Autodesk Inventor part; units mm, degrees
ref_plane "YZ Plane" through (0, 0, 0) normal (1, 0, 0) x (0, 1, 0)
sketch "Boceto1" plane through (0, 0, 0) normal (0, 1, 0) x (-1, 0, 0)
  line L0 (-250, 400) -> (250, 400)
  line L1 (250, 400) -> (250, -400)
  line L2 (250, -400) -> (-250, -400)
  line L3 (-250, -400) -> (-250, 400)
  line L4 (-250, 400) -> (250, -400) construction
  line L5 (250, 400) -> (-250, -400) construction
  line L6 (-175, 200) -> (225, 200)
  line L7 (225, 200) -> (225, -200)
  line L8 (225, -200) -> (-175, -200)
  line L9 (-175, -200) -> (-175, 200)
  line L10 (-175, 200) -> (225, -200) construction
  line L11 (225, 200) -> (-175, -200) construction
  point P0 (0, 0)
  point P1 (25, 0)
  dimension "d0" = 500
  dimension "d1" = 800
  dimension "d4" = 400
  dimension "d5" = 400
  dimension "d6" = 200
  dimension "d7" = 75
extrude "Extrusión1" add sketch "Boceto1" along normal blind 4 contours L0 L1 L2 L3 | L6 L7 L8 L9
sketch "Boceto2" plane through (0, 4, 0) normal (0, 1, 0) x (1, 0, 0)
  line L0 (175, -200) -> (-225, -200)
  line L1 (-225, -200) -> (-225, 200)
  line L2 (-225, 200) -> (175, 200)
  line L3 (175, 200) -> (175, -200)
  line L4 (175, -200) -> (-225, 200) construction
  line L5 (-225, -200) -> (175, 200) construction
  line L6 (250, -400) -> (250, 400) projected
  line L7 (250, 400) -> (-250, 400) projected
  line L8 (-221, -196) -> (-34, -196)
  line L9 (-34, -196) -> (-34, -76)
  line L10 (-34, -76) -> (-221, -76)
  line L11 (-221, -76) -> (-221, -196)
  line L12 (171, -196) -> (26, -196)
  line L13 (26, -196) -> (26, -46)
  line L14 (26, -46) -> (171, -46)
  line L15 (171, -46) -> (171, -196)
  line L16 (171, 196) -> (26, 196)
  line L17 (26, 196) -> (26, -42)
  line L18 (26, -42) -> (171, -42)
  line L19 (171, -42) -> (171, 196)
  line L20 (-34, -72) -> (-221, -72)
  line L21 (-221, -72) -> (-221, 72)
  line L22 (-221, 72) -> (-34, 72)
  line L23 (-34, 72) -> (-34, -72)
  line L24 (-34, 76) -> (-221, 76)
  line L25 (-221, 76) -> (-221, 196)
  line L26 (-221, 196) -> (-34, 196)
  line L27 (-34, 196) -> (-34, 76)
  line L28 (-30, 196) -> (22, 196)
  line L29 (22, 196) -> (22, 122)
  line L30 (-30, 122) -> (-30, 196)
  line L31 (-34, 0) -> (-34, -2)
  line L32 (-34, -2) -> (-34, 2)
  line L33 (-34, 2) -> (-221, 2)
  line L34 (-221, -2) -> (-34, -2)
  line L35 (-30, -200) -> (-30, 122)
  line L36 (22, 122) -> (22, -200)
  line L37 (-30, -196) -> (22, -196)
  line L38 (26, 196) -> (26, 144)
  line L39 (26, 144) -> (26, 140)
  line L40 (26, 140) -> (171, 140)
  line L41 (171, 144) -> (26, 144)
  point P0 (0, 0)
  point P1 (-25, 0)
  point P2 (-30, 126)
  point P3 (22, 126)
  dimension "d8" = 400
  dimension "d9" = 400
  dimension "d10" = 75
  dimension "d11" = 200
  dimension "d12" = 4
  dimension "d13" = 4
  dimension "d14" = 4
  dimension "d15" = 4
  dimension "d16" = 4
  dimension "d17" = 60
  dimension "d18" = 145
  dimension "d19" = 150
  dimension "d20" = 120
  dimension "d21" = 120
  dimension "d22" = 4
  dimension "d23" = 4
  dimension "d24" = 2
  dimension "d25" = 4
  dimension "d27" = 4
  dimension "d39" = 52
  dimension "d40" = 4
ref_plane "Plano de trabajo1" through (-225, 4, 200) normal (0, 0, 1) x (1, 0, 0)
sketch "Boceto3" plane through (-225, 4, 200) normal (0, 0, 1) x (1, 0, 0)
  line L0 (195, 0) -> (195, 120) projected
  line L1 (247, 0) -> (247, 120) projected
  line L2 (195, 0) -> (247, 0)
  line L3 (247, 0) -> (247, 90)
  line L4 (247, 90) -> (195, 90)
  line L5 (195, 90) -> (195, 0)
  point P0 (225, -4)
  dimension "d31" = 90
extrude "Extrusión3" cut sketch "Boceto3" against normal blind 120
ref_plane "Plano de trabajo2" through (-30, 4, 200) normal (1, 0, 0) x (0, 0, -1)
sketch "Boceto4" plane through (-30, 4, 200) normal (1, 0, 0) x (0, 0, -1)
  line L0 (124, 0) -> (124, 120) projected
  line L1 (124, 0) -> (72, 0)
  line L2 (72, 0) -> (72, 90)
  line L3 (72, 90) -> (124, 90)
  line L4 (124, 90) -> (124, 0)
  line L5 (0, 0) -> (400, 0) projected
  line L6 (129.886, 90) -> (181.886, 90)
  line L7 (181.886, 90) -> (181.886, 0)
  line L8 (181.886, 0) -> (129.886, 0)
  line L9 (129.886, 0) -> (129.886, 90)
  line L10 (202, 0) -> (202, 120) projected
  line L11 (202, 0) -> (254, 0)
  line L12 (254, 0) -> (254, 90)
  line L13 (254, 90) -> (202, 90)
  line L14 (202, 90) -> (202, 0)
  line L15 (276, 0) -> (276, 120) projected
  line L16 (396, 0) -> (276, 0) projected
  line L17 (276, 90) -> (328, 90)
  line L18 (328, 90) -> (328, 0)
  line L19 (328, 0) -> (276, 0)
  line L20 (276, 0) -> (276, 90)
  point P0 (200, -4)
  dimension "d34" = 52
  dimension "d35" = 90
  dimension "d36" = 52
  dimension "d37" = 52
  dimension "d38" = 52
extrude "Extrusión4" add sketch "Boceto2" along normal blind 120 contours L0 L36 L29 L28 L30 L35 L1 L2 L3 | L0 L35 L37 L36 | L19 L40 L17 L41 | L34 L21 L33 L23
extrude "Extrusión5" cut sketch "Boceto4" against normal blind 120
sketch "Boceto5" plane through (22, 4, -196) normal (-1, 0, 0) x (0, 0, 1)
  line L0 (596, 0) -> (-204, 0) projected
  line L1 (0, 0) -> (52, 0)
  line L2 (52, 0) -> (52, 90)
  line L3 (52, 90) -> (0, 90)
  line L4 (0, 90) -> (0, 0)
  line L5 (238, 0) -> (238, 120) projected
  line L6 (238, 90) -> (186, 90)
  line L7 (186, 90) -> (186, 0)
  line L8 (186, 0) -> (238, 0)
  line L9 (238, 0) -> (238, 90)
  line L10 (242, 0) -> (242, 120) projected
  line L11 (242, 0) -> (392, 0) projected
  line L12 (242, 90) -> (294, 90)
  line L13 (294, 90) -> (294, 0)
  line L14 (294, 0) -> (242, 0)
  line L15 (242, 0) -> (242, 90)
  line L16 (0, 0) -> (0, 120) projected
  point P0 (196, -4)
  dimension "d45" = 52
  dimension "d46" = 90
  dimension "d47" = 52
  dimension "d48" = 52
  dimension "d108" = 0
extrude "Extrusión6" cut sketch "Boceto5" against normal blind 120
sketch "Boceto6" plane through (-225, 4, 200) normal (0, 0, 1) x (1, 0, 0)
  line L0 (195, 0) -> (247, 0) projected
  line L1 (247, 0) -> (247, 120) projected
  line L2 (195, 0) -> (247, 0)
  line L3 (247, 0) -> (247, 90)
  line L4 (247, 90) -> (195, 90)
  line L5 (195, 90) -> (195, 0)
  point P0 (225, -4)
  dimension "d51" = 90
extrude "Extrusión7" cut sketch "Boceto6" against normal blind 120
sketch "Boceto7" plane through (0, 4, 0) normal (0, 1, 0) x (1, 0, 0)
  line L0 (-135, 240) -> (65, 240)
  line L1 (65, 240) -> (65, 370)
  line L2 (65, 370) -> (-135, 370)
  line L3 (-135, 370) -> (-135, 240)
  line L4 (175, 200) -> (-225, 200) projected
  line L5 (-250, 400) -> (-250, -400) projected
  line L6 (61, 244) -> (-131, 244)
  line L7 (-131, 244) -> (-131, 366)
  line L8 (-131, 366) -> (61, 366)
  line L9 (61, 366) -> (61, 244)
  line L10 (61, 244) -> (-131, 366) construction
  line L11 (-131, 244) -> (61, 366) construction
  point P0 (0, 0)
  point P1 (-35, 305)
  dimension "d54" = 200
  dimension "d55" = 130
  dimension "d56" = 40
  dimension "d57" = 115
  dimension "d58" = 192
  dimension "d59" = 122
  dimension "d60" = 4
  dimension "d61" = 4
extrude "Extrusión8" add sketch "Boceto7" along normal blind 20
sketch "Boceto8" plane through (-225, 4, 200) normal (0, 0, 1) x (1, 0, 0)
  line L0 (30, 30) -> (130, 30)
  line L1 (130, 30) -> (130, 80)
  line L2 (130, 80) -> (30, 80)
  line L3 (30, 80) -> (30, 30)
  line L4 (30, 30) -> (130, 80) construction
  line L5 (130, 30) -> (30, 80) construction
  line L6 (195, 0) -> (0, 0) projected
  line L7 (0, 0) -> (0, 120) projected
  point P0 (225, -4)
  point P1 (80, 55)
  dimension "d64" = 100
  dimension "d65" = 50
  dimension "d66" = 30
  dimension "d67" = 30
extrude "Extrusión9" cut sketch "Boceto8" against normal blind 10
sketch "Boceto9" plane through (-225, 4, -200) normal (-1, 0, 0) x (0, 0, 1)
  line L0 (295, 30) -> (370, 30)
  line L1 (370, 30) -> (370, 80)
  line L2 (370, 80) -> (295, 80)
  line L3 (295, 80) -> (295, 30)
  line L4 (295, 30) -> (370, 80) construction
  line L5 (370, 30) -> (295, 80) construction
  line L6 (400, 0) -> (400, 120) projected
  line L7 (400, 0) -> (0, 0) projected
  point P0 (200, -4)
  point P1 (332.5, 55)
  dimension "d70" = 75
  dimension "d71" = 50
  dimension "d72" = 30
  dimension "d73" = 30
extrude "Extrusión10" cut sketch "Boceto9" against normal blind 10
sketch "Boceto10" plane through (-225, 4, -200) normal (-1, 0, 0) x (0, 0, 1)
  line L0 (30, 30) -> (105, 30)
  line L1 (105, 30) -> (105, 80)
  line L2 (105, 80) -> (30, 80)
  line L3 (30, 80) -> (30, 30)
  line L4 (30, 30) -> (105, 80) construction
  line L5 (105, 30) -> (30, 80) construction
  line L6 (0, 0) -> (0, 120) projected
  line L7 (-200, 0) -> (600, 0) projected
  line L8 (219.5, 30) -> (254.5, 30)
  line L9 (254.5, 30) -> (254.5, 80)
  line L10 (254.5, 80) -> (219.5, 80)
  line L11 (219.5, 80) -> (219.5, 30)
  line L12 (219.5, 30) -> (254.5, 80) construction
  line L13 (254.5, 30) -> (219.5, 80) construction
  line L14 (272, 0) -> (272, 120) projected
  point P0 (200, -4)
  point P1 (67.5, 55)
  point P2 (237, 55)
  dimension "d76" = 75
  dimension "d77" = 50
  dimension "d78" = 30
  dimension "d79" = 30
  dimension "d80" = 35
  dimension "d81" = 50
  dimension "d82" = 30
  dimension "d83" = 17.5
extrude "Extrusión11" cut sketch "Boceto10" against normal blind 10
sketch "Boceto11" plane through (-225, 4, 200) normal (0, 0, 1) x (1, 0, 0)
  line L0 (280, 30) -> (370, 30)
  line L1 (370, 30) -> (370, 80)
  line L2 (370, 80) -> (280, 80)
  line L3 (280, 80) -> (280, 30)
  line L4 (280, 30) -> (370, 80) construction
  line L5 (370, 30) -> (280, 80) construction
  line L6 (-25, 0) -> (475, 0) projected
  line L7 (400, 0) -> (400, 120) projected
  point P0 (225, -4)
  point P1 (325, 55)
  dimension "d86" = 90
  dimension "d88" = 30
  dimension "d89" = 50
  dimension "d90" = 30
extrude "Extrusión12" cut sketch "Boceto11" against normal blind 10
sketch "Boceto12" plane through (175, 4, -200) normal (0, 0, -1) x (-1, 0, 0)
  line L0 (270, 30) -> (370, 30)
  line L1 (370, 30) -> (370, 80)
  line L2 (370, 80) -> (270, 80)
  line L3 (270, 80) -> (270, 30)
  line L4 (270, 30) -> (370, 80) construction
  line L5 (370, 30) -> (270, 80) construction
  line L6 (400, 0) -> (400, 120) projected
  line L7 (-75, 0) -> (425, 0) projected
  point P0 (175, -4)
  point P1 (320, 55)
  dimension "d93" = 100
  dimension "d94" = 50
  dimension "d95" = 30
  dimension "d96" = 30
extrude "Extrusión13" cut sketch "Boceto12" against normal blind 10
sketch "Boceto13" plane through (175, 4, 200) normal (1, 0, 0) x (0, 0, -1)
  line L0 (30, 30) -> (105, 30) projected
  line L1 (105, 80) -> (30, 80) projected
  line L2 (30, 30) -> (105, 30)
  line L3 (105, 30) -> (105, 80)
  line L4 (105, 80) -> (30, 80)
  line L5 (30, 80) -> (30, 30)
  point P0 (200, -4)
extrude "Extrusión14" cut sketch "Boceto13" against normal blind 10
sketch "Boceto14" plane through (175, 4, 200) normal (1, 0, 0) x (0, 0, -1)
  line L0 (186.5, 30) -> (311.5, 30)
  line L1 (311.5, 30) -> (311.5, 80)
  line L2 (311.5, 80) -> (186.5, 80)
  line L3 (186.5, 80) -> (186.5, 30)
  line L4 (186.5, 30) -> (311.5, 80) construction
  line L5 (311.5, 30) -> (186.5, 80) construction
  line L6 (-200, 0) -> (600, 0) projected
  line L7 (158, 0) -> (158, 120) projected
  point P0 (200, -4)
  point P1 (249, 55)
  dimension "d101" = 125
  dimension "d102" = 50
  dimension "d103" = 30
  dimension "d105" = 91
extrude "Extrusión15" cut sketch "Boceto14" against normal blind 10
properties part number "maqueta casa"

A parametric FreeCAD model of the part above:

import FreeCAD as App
import Part
import Sketcher
Q = App.Units.Quantity


def add_polygon(sketch, points):
    """Adds a closed chain of lines whose ends are joined by coincident constraints."""
    first, n = sketch.GeometryCount, len(points)
    for a, b in zip(points, points[1:] + points[:1]):
        sketch.addGeometry(Part.LineSegment(App.Vector(*a, 0), App.Vector(*b, 0)), False)
    for i in range(n):
        sketch.addConstraint(Sketcher.Constraint("Coincident", first + i, 2, first + (i + 1) % n, 1))

doc = App.newDocument("Part")
body = doc.addObject("PartDesign::Body", "Body")

# Sketch on XZ plane
sketch1 = body.newObject("Sketcher::SketchObject", "Sketch")
sketch1.AttachmentSupport = (doc.getObject("XZ_Plane"), [""])
sketch1.MapMode = "FlatFace"
add_polygon(sketch1, [(-250, 400), (250, 400), (250, -400), (-250, -400)])  # lines 0-3
sketch1.addConstraint([
    Sketcher.Constraint("Horizontal", 0),
    Sketcher.Constraint("Vertical", 1),
    Sketcher.Constraint("Horizontal", 2),
    Sketcher.Constraint("Vertical", 3),
    Sketcher.Constraint("Symmetric", 0, 2, 2, 2, -1, 1),
    Sketcher.Constraint("DistanceX", 0, 1, 0, 2, Q("500 mm")),
    Sketcher.Constraint("DistanceY", 1, 2, 1, 1, Q("800 mm")),
])
pad1 = body.newObject("PartDesign::Pad", "Pad")
pad1.Profile = sketch1
pad1.Length = 4
pad1.Reversed = True

# Sketch on XY plane
sketch2 = body.newObject("Sketcher::SketchObject", "Sketch001")
sketch2.AttachmentSupport = (doc.getObject("XY_Plane"), [""])
sketch2.MapMode = "FlatFace"
sketch2.AttachmentOffset = App.Placement(App.Vector(0, 0, 200), App.Rotation())
add_polygon(sketch2, [(-30, 94), (-30, 4), (22, 4), (22, 94)])  # lines 0-3
sketch2.addConstraint([
    Sketcher.Constraint("Vertical", 0),
    Sketcher.Constraint("Horizontal", 1),
    Sketcher.Constraint("Vertical", 2),
    Sketcher.Constraint("Horizontal", 3),
    Sketcher.Constraint("DistanceY", 0, 2, 0, 1, Q("90 mm")),
    Sketcher.Constraint("DistanceX", 1, 1, 1, 2, Q("52 mm")),
    Sketcher.Constraint("DistanceX", 0, 2, -1, 1, Q("30 mm")),
    Sketcher.Constraint("DistanceY", -1, 1, 0, 2, Q("4 mm")),
])
pocket1 = body.newObject("PartDesign::Pocket", "Pocket")
pocket1.Profile = sketch2
pocket1.Length = 120

# Sketch on XZ plane
sketch3 = body.newObject("Sketcher::SketchObject", "Sketch002")
sketch3.AttachmentSupport = (doc.getObject("XZ_Plane"), [""])
sketch3.MapMode = "FlatFace"
sketch3.AttachmentOffset = App.Placement(App.Vector(0, 0, -4), App.Rotation())
add_polygon(sketch3, [(175, 200), (175, -200), (-225, -200), (-225, 200)])  # lines 0-3
add_polygon(sketch3, [(22, 196), (-30, 196), (-30, -196), (22, -196)])  # lines 4-7
add_polygon(sketch3, [(-34, 196), (-221, 196), (-221, 76), (-34, 76)])  # lines 8-11
add_polygon(sketch3, [(171, 46), (171, 196), (26, 196), (26, 46)])  # lines 12-15
add_polygon(sketch3, [(-34, 2), (-34, 72), (-221, 72), (-221, 2)])  # lines 16-19
add_polygon(sketch3, [(-34, -72), (-34, -2), (-221, -2), (-221, -72)])  # lines 20-23
add_polygon(sketch3, [(-34, -196), (-34, -76), (-221, -76), (-221, -196)])  # lines 24-27
add_polygon(sketch3, [(26, -196), (171, -196), (171, -144), (26, -144)])  # lines 28-31
add_polygon(sketch3, [(26, 42), (26, -140), (171, -140), (171, 42)])  # lines 32-35
sketch3.addConstraint([
    Sketcher.Constraint("Vertical", 0),
    Sketcher.Constraint("Horizontal", 1),
    Sketcher.Constraint("Vertical", 2),
    Sketcher.Constraint("Horizontal", 3),
    Sketcher.Constraint("Horizontal", 4),
    Sketcher.Constraint("Vertical", 5),
    Sketcher.Constraint("Horizontal", 6),
    Sketcher.Constraint("Vertical", 7),
    Sketcher.Constraint("Horizontal", 8),
    Sketcher.Constraint("Vertical", 9),
    Sketcher.Constraint("Horizontal", 10),
    Sketcher.Constraint("Vertical", 11),
    Sketcher.Constraint("Vertical", 12),
    Sketcher.Constraint("Horizontal", 13),
    Sketcher.Constraint("Vertical", 14),
    Sketcher.Constraint("Horizontal", 15),
    Sketcher.Constraint("Vertical", 16),
    Sketcher.Constraint("Horizontal", 17),
    Sketcher.Constraint("Vertical", 18),
    Sketcher.Constraint("Horizontal", 19),
    Sketcher.Constraint("Vertical", 20),
    Sketcher.Constraint("Horizontal", 21),
    Sketcher.Constraint("Vertical", 22),
    Sketcher.Constraint("Horizontal", 23),
    Sketcher.Constraint("Vertical", 24),
    Sketcher.Constraint("Horizontal", 25),
    Sketcher.Constraint("Vertical", 26),
    Sketcher.Constraint("Horizontal", 27),
    Sketcher.Constraint("Horizontal", 28),
    Sketcher.Constraint("Vertical", 29),
    Sketcher.Constraint("Horizontal", 30),
    Sketcher.Constraint("Vertical", 31),
    Sketcher.Constraint("Vertical", 32),
    Sketcher.Constraint("Horizontal", 33),
    Sketcher.Constraint("Vertical", 34),
    Sketcher.Constraint("Horizontal", 35),
    Sketcher.Constraint("Symmetric", 19, 2, 20, 2, -1),
    Sketcher.Constraint("Symmetric", 17, 2, 22, 2, -1),
    Sketcher.Constraint("Symmetric", 10, 2, 24, 2, -1),
    Sketcher.Constraint("Symmetric", 8, 2, 26, 2, -1),
    Sketcher.Constraint("Symmetric", 12, 2, 28, 2, -1),
    Sketcher.Constraint("Horizontal", 7, 2, 8, 2),
    Sketcher.Constraint("Horizontal", 11, 2, 12, 2),
    Sketcher.Constraint("Horizontal", 6, 2, 26, 2),
    Sketcher.Constraint("Vertical", 11, 2, 16, 2),
    Sketcher.Constraint("Vertical", 9, 2, 17, 2),
    Sketcher.Constraint("Vertical", 14, 2, 30, 2),
    Sketcher.Constraint("Vertical", 31, 2, 32, 2),
    Sketcher.Constraint("Vertical", 29, 2, 33, 2),
    Sketcher.Constraint("Equal", 3, 0),
    Sketcher.Constraint("Equal", 6, 29),
    Sketcher.Constraint("DistanceX", 1, 2, 1, 1, Q("400 mm")),
    Sketcher.Constraint("DistanceX", 4, 2, 4, 1, Q("52 mm")),
    Sketcher.Constraint("DistanceX", 13, 2, 13, 1, Q("145 mm")),
    Sketcher.Constraint("DistanceY", 9, 2, 9, 1, Q("120 mm")),
    Sketcher.Constraint("DistanceY", 12, 1, 12, 2, Q("150 mm")),
    Sketcher.Constraint("DistanceY", 0, 2, -1, 1, Q("200 mm")),
    Sketcher.Constraint("DistanceY", -1, 1, 18, 2, Q("2 mm")),
    Sketcher.Constraint("DistanceY", 4, 2, 2, 2, Q("4 mm")),
    Sketcher.Constraint("DistanceX", 2, 2, 8, 2, Q("4 mm")),
    Sketcher.Constraint("DistanceX", 10, 2, 4, 2, Q("4 mm")),
    Sketcher.Constraint("DistanceX", 12, 2, 3, 2, Q("4 mm")),
    Sketcher.Constraint("DistanceX", 7, 2, 13, 2, Q("4 mm")),
    Sketcher.Constraint("DistanceY", 16, 2, 10, 2, Q("4 mm")),
    Sketcher.Constraint("DistanceY", 30, 2, 32, 2, Q("4 mm")),
    Sketcher.Constraint("DistanceY", 34, 2, 15, 2, Q("4 mm")),
    Sketcher.Constraint("DistanceX", -1, 1, 0, 2, Q("175 mm")),
])
pad2 = body.newObject("PartDesign::Pad", "Pad001")
pad2.Profile = sketch3
pad2.Length = 120
pad2.Reversed = True

# Sketch on YZ plane
sketch4 = body.newObject("Sketcher::SketchObject", "Sketch003")
sketch4.AttachmentSupport = (doc.getObject("YZ_Plane"), [""])
sketch4.MapMode = "FlatFace"
sketch4.AttachmentOffset = App.Placement(App.Vector(0, 0, -30), App.Rotation())
add_polygon(sketch4, [(4, 128), (4, 76), (94, 76), (94, 128)])  # lines 0-3
add_polygon(sketch4, [(94, -76), (4, -76), (4, -128), (94, -128)])  # lines 4-7
add_polygon(sketch4, [(94, -2), (4, -2), (4, -54), (94, -54)])  # lines 8-11
add_polygon(sketch4, [(94, 70.114), (4, 70.114), (4, 18.114), (94, 18.114)])  # lines 12-15
sketch4.addConstraint([
    Sketcher.Constraint("Vertical", 0),
    Sketcher.Constraint("Horizontal", 1),
    Sketcher.Constraint("Vertical", 2),
    Sketcher.Constraint("Horizontal", 3),
    Sketcher.Constraint("Horizontal", 4),
    Sketcher.Constraint("Vertical", 5),
    Sketcher.Constraint("Horizontal", 6),
    Sketcher.Constraint("Vertical", 7),
    Sketcher.Constraint("Horizontal", 8),
    Sketcher.Constraint("Vertical", 9),
    Sketcher.Constraint("Horizontal", 10),
    Sketcher.Constraint("Vertical", 11),
    Sketcher.Constraint("Horizontal", 12),
    Sketcher.Constraint("Vertical", 13),
    Sketcher.Constraint("Horizontal", 14),
    Sketcher.Constraint("Vertical", 15),
    Sketcher.Constraint("Symmetric", 0, 2, 4, 2, -1),
    Sketcher.Constraint("Symmetric", 2, 2, 6, 2, -1),
    Sketcher.Constraint("Vertical", 5, 2, 8, 2),
    Sketcher.Constraint("Vertical", 7, 2, 10, 2),
    Sketcher.Constraint("Vertical", 9, 2, 12, 2),
    Sketcher.Constraint("Vertical", 11, 2, 14, 2),
    Sketcher.Constraint("Equal", 7, 9),
    Sketcher.Constraint("Equal", 11, 13),
    Sketcher.Constraint("DistanceX", 1, 1, 1, 2, Q("90 mm")),
    Sketcher.Constraint("DistanceY", 0, 2, 0, 1, Q("52 mm")),
    Sketcher.Constraint("DistanceX", -1, 1, 0, 2, Q("4 mm")),
    Sketcher.Constraint("DistanceY", -1, 1, 0, 2, Q("76 mm")),
    Sketcher.Constraint("DistanceY", 8, 2, -1, 1, Q("2 mm")),
    Sketcher.Constraint("DistanceY", -1, 1, 12, 2, Q("70.114 mm")),
])
pocket2 = body.newObject("PartDesign::Pocket", "Pocket001")
pocket2.Profile = sketch4
pocket2.Length = 120

# Sketch on YZ plane
sketch5 = body.newObject("Sketcher::SketchObject", "Sketch004")
sketch5.AttachmentSupport = (doc.getObject("YZ_Plane"), [""])
sketch5.MapMode = "FlatFace"
sketch5.AttachmentOffset = App.Placement(App.Vector(0, 0, 22), App.Rotation())
add_polygon(sketch5, [(4, -196), (4, -144), (94, -144), (94, -196)])  # lines 0-3
add_polygon(sketch5, [(4, -10), (4, 42), (94, 42), (94, -10)])  # lines 4-7
add_polygon(sketch5, [(4, 46), (4, 98), (94, 98), (94, 46)])  # lines 8-11
sketch5.addConstraint([
    Sketcher.Constraint("Vertical", 0),
    Sketcher.Constraint("Horizontal", 1),
    Sketcher.Constraint("Vertical", 2),
    Sketcher.Constraint("Horizontal", 3),
    Sketcher.Constraint("Vertical", 4),
    Sketcher.Constraint("Horizontal", 5),
    Sketcher.Constraint("Vertical", 6),
    Sketcher.Constraint("Horizontal", 7),
    Sketcher.Constraint("Vertical", 8),
    Sketcher.Constraint("Horizontal", 9),
    Sketcher.Constraint("Vertical", 10),
    Sketcher.Constraint("Horizontal", 11),
    Sketcher.Constraint("Vertical", 3, 2, 4, 2),
    Sketcher.Constraint("Vertical", 2, 2, 5, 2),
    Sketcher.Constraint("Vertical", 7, 2, 8, 2),
    Sketcher.Constraint("Vertical", 6, 2, 9, 2),
    Sketcher.Constraint("Equal", 2, 4),
    Sketcher.Constraint("Equal", 6, 8),
    Sketcher.Constraint("DistanceX", 1, 1, 1, 2, Q("90 mm")),
    Sketcher.Constraint("DistanceY", 0, 1, 0, 2, Q("52 mm")),
    Sketcher.Constraint("DistanceX", -1, 1, 0, 2, Q("4 mm")),
    Sketcher.Constraint("DistanceY", 0, 2, -1, 1, Q("144 mm")),
    Sketcher.Constraint("DistanceY", -1, 1, 4, 2, Q("42 mm")),
    Sketcher.Constraint("DistanceY", -1, 1, 8, 2, Q("98 mm")),
])
pocket3 = body.newObject("PartDesign::Pocket", "Pocket002")
pocket3.Profile = sketch5
pocket3.Length = 120
pocket3.Reversed = True

# Sketch on XY plane
sketch6 = body.newObject("Sketcher::SketchObject", "Sketch005")
sketch6.AttachmentSupport = (doc.getObject("XY_Plane"), [""])
sketch6.MapMode = "FlatFace"
sketch6.AttachmentOffset = App.Placement(App.Vector(0, 0, 200), App.Rotation())
add_polygon(sketch6, [(-30, 94), (-30, 4), (22, 4), (22, 94)])  # lines 0-3
sketch6.addConstraint([
    Sketcher.Constraint("Vertical", 0),
    Sketcher.Constraint("Horizontal", 1),
    Sketcher.Constraint("Vertical", 2),
    Sketcher.Constraint("Horizontal", 3),
    Sketcher.Constraint("DistanceY", 0, 2, 0, 1, Q("90 mm")),
    Sketcher.Constraint("DistanceX", 1, 1, 1, 2, Q("52 mm")),
    Sketcher.Constraint("DistanceX", 0, 2, -1, 1, Q("30 mm")),
    Sketcher.Constraint("DistanceY", -1, 1, 0, 2, Q("4 mm")),
])
pocket4 = body.newObject("PartDesign::Pocket", "Pocket003")
pocket4.Profile = sketch6
pocket4.Length = 120

# Sketch on XZ plane
sketch7 = body.newObject("Sketcher::SketchObject", "Sketch006")
sketch7.AttachmentSupport = (doc.getObject("XZ_Plane"), [""])
sketch7.MapMode = "FlatFace"
sketch7.AttachmentOffset = App.Placement(App.Vector(0, 0, -4), App.Rotation())
add_polygon(sketch7, [(-135, -370), (-135, -240), (65, -240), (65, -370)])  # lines 0-3
add_polygon(sketch7, [(61, -366), (61, -244), (-131, -244), (-131, -366)])  # lines 4-7
sketch7.addConstraint([
    Sketcher.Constraint("Vertical", 0),
    Sketcher.Constraint("Horizontal", 1),
    Sketcher.Constraint("Vertical", 2),
    Sketcher.Constraint("Horizontal", 3),
    Sketcher.Constraint("Vertical", 4),
    Sketcher.Constraint("Horizontal", 5),
    Sketcher.Constraint("Vertical", 6),
    Sketcher.Constraint("Horizontal", 7),
    Sketcher.Constraint("DistanceX", 1, 1, 1, 2, Q("200 mm")),
    Sketcher.Constraint("DistanceX", 5, 2, 5, 1, Q("192 mm")),
    Sketcher.Constraint("DistanceY", 0, 1, 0, 2, Q("130 mm")),
    Sketcher.Constraint("DistanceY", 4, 1, 4, 2, Q("122 mm")),
    Sketcher.Constraint("DistanceX", 4, 2, 1, 2, Q("4 mm")),
    Sketcher.Constraint("DistanceY", 4, 2, 1, 2, Q("4 mm")),
    Sketcher.Constraint("DistanceX", 0, 2, -1, 1, Q("135 mm")),
    Sketcher.Constraint("DistanceY", 0, 2, -1, 1, Q("240 mm")),
])
pad3 = body.newObject("PartDesign::Pad", "Pad002")
pad3.Profile = sketch7
pad3.Length = 20
pad3.Reversed = True

# Sketch on XY plane
sketch8 = body.newObject("Sketcher::SketchObject", "Sketch007")
sketch8.AttachmentSupport = (doc.getObject("XY_Plane"), [""])
sketch8.MapMode = "FlatFace"
sketch8.AttachmentOffset = App.Placement(App.Vector(0, 0, 200), App.Rotation())
add_polygon(sketch8, [(-195, 84), (-195, 34), (-95, 34), (-95, 84)])  # lines 0-3
sketch8.addConstraint([
    Sketcher.Constraint("Vertical", 0),
    Sketcher.Constraint("Horizontal", 1),
    Sketcher.Constraint("Vertical", 2),
    Sketcher.Constraint("Horizontal", 3),
    Sketcher.Constraint("DistanceX", 1, 1, 1, 2, Q("100 mm")),
    Sketcher.Constraint("DistanceY", 0, 2, 0, 1, Q("50 mm")),
    Sketcher.Constraint("DistanceX", 0, 2, -1, 1, Q("195 mm")),
    Sketcher.Constraint("DistanceY", -1, 1, 0, 2, Q("34 mm")),
])
pocket5 = body.newObject("PartDesign::Pocket", "Pocket004")
pocket5.Profile = sketch8
pocket5.Length = 10

# Sketch on YZ plane
sketch9 = body.newObject("Sketcher::SketchObject", "Sketch008")
sketch9.AttachmentSupport = (doc.getObject("YZ_Plane"), [""])
sketch9.MapMode = "FlatFace"
sketch9.AttachmentOffset = App.Placement(App.Vector(0, 0, -225), App.Rotation())
add_polygon(sketch9, [(84, 95), (34, 95), (34, 170), (84, 170)])  # lines 0-3
sketch9.addConstraint([
    Sketcher.Constraint("Horizontal", 0),
    Sketcher.Constraint("Vertical", 1),
    Sketcher.Constraint("Horizontal", 2),
    Sketcher.Constraint("Vertical", 3),
    Sketcher.Constraint("DistanceX", 0, 2, 0, 1, Q("50 mm")),
    Sketcher.Constraint("DistanceY", 1, 1, 1, 2, Q("75 mm")),
    Sketcher.Constraint("DistanceX", -1, 1, 0, 2, Q("34 mm")),
    Sketcher.Constraint("DistanceY", -1, 1, 0, 2, Q("95 mm")),
])
pocket6 = body.newObject("PartDesign::Pocket", "Pocket005")
pocket6.Profile = sketch9
pocket6.Length = 10
pocket6.Reversed = True

# Sketch on YZ plane
sketch10 = body.newObject("Sketcher::SketchObject", "Sketch009")
sketch10.AttachmentSupport = (doc.getObject("YZ_Plane"), [""])
sketch10.MapMode = "FlatFace"
sketch10.AttachmentOffset = App.Placement(App.Vector(0, 0, -225), App.Rotation())
add_polygon(sketch10, [(84, -170), (34, -170), (34, -95), (84, -95)])  # lines 0-3
add_polygon(sketch10, [(84, 19.5), (34, 19.5), (34, 54.5), (84, 54.5)])  # lines 4-7
sketch10.addConstraint([
    Sketcher.Constraint("Horizontal", 0),
    Sketcher.Constraint("Vertical", 1),
    Sketcher.Constraint("Horizontal", 2),
    Sketcher.Constraint("Vertical", 3),
    Sketcher.Constraint("Horizontal", 4),
    Sketcher.Constraint("Vertical", 5),
    Sketcher.Constraint("Horizontal", 6),
    Sketcher.Constraint("Vertical", 7),
    Sketcher.Constraint("Vertical", 1, 2, 4, 2),
    Sketcher.Constraint("Vertical", 3, 2, 6, 2),
    Sketcher.Constraint("DistanceX", 0, 2, 0, 1, Q("50 mm")),
    Sketcher.Constraint("DistanceY", 1, 1, 1, 2, Q("75 mm")),
    Sketcher.Constraint("DistanceY", 5, 1, 5, 2, Q("35 mm")),
    Sketcher.Constraint("DistanceX", -1, 1, 0, 2, Q("34 mm")),
    Sketcher.Constraint("DistanceY", 0, 2, -1, 1, Q("170 mm")),
    Sketcher.Constraint("DistanceY", -1, 1, 4, 2, Q("19.5 mm")),
])
pocket7 = body.newObject("PartDesign::Pocket", "Pocket006")
pocket7.Profile = sketch10
pocket7.Length = 10
pocket7.Reversed = True

# Sketch on XY plane
sketch11 = body.newObject("Sketcher::SketchObject", "Sketch010")
sketch11.AttachmentSupport = (doc.getObject("XY_Plane"), [""])
sketch11.MapMode = "FlatFace"
sketch11.AttachmentOffset = App.Placement(App.Vector(0, 0, 200), App.Rotation())
add_polygon(sketch11, [(55, 84), (55, 34), (145, 34), (145, 84)])  # lines 0-3
sketch11.addConstraint([
    Sketcher.Constraint("Vertical", 0),
    Sketcher.Constraint("Horizontal", 1),
    Sketcher.Constraint("Vertical", 2),
    Sketcher.Constraint("Horizontal", 3),
    Sketcher.Constraint("DistanceX", 1, 1, 1, 2, Q("90 mm")),
    Sketcher.Constraint("DistanceY", 0, 2, 0, 1, Q("50 mm")),
    Sketcher.Constraint("DistanceX", -1, 1, 0, 2, Q("55 mm")),
    Sketcher.Constraint("DistanceY", -1, 1, 0, 2, Q("34 mm")),
])
pocket8 = body.newObject("PartDesign::Pocket", "Pocket007")
pocket8.Profile = sketch11
pocket8.Length = 10

# Sketch on XY plane
sketch12 = body.newObject("Sketcher::SketchObject", "Sketch011")
sketch12.AttachmentSupport = (doc.getObject("XY_Plane"), [""])
sketch12.MapMode = "FlatFace"
sketch12.AttachmentOffset = App.Placement(App.Vector(0, 0, -200), App.Rotation())
add_polygon(sketch12, [(-95, 84), (-95, 34), (-195, 34), (-195, 84)])  # lines 0-3
sketch12.addConstraint([
    Sketcher.Constraint("Vertical", 0),
    Sketcher.Constraint("Horizontal", 1),
    Sketcher.Constraint("Vertical", 2),
    Sketcher.Constraint("Horizontal", 3),
    Sketcher.Constraint("DistanceX", 1, 2, 1, 1, Q("100 mm")),
    Sketcher.Constraint("DistanceY", 0, 2, 0, 1, Q("50 mm")),
    Sketcher.Constraint("DistanceX", 0, 2, -1, 1, Q("95 mm")),
    Sketcher.Constraint("DistanceY", -1, 1, 0, 2, Q("34 mm")),
])
pocket9 = body.newObject("PartDesign::Pocket", "Pocket008")
pocket9.Profile = sketch12
pocket9.Length = 10
pocket9.Reversed = True

# Sketch on YZ plane
sketch13 = body.newObject("Sketcher::SketchObject", "Sketch012")
sketch13.AttachmentSupport = (doc.getObject("YZ_Plane"), [""])
sketch13.MapMode = "FlatFace"
sketch13.AttachmentOffset = App.Placement(App.Vector(0, 0, 175), App.Rotation())
add_polygon(sketch13, [(84, 170), (34, 170), (34, 95), (84, 95)])  # lines 0-3
sketch13.addConstraint([
    Sketcher.Constraint("Horizontal", 0),
    Sketcher.Constraint("Vertical", 1),
    Sketcher.Constraint("Horizontal", 2),
    Sketcher.Constraint("Vertical", 3),
    Sketcher.Constraint("DistanceX", 0, 2, 0, 1, Q("50 mm")),
    Sketcher.Constraint("DistanceY", 1, 2, 1, 1, Q("75 mm")),
    Sketcher.Constraint("DistanceX", -1, 1, 0, 2, Q("34 mm")),
    Sketcher.Constraint("DistanceY", -1, 1, 0, 2, Q("170 mm")),
])
pocket10 = body.newObject("PartDesign::Pocket", "Pocket009")
pocket10.Profile = sketch13
pocket10.Length = 10

# Sketch on YZ plane
sketch14 = body.newObject("Sketcher::SketchObject", "Sketch013")
sketch14.AttachmentSupport = (doc.getObject("YZ_Plane"), [""])
sketch14.MapMode = "FlatFace"
sketch14.AttachmentOffset = App.Placement(App.Vector(0, 0, 175), App.Rotation())
add_polygon(sketch14, [(84, 13.5), (34, 13.5), (34, -111.5), (84, -111.5)])  # lines 0-3
sketch14.addConstraint([
    Sketcher.Constraint("Horizontal", 0),
    Sketcher.Constraint("Vertical", 1),
    Sketcher.Constraint("Horizontal", 2),
    Sketcher.Constraint("Vertical", 3),
    Sketcher.Constraint("DistanceX", 0, 2, 0, 1, Q("50 mm")),
    Sketcher.Constraint("DistanceY", 1, 2, 1, 1, Q("125 mm")),
    Sketcher.Constraint("DistanceX", -1, 1, 0, 2, Q("34 mm")),
    Sketcher.Constraint("DistanceY", -1, 1, 0, 2, Q("13.5 mm")),
])
pocket11 = body.newObject("PartDesign::Pocket", "Pocket010")
pocket11.Profile = sketch14
pocket11.Length = 10

doc.recompute()
